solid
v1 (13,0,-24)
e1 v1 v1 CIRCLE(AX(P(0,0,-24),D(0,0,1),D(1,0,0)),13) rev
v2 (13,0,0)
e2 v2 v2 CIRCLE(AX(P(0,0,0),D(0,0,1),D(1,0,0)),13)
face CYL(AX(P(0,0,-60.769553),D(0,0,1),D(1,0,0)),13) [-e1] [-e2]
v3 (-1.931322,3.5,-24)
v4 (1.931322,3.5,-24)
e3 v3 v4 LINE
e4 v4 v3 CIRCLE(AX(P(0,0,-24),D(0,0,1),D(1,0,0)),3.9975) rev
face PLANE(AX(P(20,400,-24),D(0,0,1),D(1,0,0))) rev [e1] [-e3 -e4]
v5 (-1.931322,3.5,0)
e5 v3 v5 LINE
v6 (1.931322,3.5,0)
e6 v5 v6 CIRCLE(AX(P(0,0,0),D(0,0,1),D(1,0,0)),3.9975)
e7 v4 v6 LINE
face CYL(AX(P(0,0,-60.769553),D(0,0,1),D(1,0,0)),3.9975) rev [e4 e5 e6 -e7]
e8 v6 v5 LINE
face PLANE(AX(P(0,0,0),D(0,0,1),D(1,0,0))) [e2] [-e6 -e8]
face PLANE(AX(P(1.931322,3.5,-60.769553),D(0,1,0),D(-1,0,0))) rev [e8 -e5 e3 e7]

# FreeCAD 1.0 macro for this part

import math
import FreeCAD as App
import Part
import Sketcher
from FreeCAD import Vector

doc = App.newDocument("Part")
params = doc.addObject("Spreadsheet::Sheet", "Params")
for row, (alias, value) in enumerate([
    ("sketch1_diameter", "26 mm"),
    ("pad1_length", "24 mm"),
], start=1):
    params.set(f"A{row}", alias)
    params.set(f"B{row}", "=" + value)
    params.setAlias(f"B{row}", alias)

body = doc.addObject("PartDesign::Body", "Body")

# Sketch on XY plane
sketch1 = body.newObject("Sketcher::SketchObject", "Sketch")
sketch1.AttachmentSupport = (doc.getObject("XY_Plane"), [""])
sketch1.MapMode = "FlatFace"
sketch1.addGeometry([
    Part.Circle(Vector(0, 0, 0), Vector(0, 0, 1), 13),
    Part.LineSegment(Vector(-1.9, 3.5, 0), Vector(1.9, 3.5, 0)),
    Part.ArcOfCircle(Part.Circle(Vector(0, 0, 0), Vector(0, 0, 1), 4), math.radians(119), math.radians(421)),
], False)
sketch1.addConstraint([
    Sketcher.Constraint("Coincident", 1, 1, 2, 1),
    Sketcher.Constraint("Coincident", 2, 2, 1, 2),
    Sketcher.Constraint("Horizontal", 1),
    Sketcher.Constraint("Coincident", 0, 3, -1, 1),
    Sketcher.Constraint("Coincident", 2, 3, -1, 1),
    Sketcher.Constraint("Diameter", 0, 26.0),
    Sketcher.Constraint("DistanceY", -1, 1, 1, 1, 3.5),
    Sketcher.Constraint("Radius", 2, 3.9975),
])
sketch1.setExpression("Constraints[5]", "Params.sketch1_diameter")
pad1 = body.newObject("PartDesign::Pad", "Pad")
pad1.Profile = sketch1
pad1.setExpression("Length", "Params.pad1_length")
pad1.Reversed = True

doc.recompute()
